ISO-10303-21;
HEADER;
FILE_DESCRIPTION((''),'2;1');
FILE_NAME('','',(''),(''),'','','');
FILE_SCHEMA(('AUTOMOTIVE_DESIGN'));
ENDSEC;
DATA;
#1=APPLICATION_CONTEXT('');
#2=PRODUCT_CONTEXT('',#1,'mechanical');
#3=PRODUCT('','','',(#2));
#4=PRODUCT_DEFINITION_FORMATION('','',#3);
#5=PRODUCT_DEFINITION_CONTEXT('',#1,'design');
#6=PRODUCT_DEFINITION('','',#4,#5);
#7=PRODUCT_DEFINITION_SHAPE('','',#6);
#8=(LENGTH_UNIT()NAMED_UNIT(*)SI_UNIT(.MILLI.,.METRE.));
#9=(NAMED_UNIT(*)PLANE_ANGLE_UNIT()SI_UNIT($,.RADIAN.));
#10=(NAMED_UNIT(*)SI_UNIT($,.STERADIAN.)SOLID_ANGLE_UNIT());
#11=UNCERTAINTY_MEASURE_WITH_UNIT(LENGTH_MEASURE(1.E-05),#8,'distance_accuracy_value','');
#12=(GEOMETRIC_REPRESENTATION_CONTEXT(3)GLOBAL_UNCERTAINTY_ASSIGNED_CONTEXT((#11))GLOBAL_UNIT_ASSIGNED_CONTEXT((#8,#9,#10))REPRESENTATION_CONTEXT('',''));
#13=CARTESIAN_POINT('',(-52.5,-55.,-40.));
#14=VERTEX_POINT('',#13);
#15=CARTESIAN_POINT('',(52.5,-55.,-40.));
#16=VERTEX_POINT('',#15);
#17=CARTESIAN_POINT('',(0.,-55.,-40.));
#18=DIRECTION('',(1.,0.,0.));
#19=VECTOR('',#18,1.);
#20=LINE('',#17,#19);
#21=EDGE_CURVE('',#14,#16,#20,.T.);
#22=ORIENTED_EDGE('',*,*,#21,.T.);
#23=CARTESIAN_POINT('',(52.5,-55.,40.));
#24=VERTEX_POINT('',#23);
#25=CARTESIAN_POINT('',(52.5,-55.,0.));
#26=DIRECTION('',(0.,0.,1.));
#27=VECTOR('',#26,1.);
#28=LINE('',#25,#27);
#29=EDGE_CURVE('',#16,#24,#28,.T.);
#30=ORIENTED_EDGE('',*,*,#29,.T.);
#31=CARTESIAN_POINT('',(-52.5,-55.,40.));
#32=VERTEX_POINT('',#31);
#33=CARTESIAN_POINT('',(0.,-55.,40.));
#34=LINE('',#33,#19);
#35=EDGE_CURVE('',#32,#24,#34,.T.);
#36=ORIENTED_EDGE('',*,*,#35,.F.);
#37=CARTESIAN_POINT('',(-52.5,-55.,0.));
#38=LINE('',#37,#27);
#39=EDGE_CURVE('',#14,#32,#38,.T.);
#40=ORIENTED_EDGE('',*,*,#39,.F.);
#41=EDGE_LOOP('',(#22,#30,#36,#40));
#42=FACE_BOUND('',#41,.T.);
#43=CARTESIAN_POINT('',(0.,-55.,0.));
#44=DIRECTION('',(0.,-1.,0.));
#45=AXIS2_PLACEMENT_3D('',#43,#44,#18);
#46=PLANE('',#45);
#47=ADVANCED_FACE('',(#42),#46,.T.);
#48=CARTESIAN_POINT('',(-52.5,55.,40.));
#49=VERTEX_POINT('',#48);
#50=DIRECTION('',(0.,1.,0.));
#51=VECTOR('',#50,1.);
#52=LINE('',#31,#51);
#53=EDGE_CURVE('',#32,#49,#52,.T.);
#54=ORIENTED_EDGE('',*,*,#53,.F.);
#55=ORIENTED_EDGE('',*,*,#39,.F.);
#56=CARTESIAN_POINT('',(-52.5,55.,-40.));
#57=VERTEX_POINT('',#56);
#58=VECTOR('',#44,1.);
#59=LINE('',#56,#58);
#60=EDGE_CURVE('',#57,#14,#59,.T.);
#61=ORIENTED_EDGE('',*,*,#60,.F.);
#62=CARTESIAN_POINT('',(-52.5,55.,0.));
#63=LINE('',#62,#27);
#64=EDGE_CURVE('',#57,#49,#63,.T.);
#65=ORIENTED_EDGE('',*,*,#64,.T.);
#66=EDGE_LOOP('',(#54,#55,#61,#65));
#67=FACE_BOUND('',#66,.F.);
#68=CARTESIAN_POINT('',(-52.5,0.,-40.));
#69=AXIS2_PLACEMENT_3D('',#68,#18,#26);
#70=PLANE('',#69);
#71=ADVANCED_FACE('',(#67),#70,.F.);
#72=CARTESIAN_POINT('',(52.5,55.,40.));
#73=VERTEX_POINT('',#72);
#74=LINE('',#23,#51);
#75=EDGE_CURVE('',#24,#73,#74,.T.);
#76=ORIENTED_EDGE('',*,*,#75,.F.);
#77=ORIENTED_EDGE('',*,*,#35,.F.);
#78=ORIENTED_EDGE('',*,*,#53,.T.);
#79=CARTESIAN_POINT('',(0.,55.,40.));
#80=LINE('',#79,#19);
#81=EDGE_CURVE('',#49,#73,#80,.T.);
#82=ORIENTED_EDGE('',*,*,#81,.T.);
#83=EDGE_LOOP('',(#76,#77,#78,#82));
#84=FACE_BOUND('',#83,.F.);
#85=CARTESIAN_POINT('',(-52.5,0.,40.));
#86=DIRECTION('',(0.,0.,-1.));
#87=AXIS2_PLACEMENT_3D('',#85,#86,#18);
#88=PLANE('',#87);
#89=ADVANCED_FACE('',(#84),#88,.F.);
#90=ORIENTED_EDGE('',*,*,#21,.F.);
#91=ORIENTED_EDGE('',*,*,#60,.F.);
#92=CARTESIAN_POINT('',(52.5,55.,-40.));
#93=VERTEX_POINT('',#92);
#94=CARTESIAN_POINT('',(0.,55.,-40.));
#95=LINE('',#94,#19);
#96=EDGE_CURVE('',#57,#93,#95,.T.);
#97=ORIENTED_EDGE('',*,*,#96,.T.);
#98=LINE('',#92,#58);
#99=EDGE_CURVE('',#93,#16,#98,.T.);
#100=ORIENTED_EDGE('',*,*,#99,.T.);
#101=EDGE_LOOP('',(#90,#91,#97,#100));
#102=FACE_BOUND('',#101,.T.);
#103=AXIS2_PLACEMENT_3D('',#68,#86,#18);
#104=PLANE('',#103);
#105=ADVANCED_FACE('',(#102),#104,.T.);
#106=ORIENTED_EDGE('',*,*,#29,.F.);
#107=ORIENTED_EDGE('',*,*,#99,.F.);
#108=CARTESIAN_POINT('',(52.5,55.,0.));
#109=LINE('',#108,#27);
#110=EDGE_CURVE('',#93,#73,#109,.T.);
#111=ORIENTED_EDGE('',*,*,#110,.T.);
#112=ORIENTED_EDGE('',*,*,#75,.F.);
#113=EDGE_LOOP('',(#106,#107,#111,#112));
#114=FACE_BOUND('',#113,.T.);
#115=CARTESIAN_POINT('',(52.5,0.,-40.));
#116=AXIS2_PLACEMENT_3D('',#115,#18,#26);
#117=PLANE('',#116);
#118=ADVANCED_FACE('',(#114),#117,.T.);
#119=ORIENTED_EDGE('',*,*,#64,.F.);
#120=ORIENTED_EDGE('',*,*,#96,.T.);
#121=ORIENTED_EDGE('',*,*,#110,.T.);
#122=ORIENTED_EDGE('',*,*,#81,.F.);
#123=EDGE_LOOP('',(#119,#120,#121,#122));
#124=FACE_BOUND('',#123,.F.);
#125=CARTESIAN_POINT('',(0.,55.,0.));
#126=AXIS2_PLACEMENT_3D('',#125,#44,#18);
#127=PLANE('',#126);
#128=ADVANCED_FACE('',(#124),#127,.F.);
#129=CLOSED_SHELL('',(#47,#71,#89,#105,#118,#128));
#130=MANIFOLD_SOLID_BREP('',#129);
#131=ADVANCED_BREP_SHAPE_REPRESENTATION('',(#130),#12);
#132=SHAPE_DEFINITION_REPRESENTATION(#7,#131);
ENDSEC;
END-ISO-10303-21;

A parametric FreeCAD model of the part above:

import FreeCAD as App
import Part
import Sketcher

V = App.Vector


def add_polygon(sketch, points):
    """Adds a closed chain of lines whose ends are joined by coincident constraints."""
    first, n = sketch.GeometryCount, len(points)
    for a, b in zip(points, points[1:] + points[:1]):
        sketch.addGeometry(Part.LineSegment(App.Vector(*a, 0), App.Vector(*b, 0)), False)
    for i in range(n):
        sketch.addConstraint(Sketcher.Constraint("Coincident", first + i, 2, first + (i + 1) % n, 1))

doc = App.newDocument("Part")
body = doc.addObject("PartDesign::Body", "Body")

# Sketch on XZ plane
sketch1 = doc.addObject("Sketcher::SketchObject", "Sketch")
body.addObject(sketch1)
sketch1.AttachmentSupport = (doc.XZ_Plane, [""])
sketch1.MapMode = "FlatFace"
add_polygon(sketch1, [(-52, 40), (-52, -40), (52, -40), (52, 40)])  # lines 0-3
sketch1.addConstraint(Sketcher.Constraint("Vertical", 0))
sketch1.addConstraint(Sketcher.Constraint("Horizontal", 1))
sketch1.addConstraint(Sketcher.Constraint("Vertical", 2))
sketch1.addConstraint(Sketcher.Constraint("Horizontal", 3))
sketch1.addConstraint(Sketcher.Constraint("Symmetric", 0, 2, 2, 2, -1, 1))
sketch1.addConstraint(Sketcher.Constraint("DistanceX", 1, 1, 1, 2, 105.0))
sketch1.addConstraint(Sketcher.Constraint("DistanceY", 0, 2, 0, 1, 80.0))
pad1 = doc.addObject("PartDesign::Pad", "Pad")
body.addObject(pad1)
pad1.Profile = sketch1
pad1.Length = 110
pad1.Midplane = True

doc.recompute()
